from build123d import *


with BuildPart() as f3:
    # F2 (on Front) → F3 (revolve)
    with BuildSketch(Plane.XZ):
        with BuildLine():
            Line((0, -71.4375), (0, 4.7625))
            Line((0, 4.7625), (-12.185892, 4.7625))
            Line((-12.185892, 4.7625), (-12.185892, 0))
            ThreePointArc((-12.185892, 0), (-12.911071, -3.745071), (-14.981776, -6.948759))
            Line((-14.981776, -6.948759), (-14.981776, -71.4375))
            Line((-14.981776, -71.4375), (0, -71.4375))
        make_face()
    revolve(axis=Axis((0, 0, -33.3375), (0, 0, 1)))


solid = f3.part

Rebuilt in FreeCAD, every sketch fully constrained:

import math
import FreeCAD as App
import Part
import Sketcher
Q = App.Units.Quantity

doc = App.newDocument("Part")
body = doc.addObject("PartDesign::Body", "Body")

sketch1 = doc.addObject("Sketcher::SketchObject", "Sketch")
body.addObject(sketch1)
sketch1.AttachmentSupport = (doc.XZ_Plane, [""])
sketch1.MapMode = "FlatFace"
sketch1.addGeometry([
    Part.LineSegment(App.Vector(0, -71.4, 0), App.Vector(0, 4.8, 0)),
    Part.LineSegment(App.Vector(0, 4.8, 0), App.Vector(-12.2, 4.8, 0)),
    Part.LineSegment(App.Vector(-12.2, 4.8, 0), App.Vector(-12.2, 0, 0)),
    Part.ArcOfCircle(Part.Circle(App.Vector(-22.2, 0, 0), App.Vector(0, 0, 1), 10), math.radians(-44), math.radians(0)),
    Part.LineSegment(App.Vector(-15, -6.9, 0), App.Vector(-15, -71.4, 0)),
    Part.LineSegment(App.Vector(-15, -71.4, 0), App.Vector(0, -71.4, 0)),
], False)
sketch1.addConstraint([
    Sketcher.Constraint("Coincident", 0, 2, 1, 1),
    Sketcher.Constraint("Coincident", 1, 2, 2, 1),
    Sketcher.Constraint("Tangent", 2, 2, 3, 2),
    Sketcher.Constraint("Coincident", 3, 1, 4, 1),
    Sketcher.Constraint("Coincident", 4, 2, 5, 1),
    Sketcher.Constraint("Coincident", 5, 2, 0, 1),
    Sketcher.Constraint("Vertical", 0),
    Sketcher.Constraint("Horizontal", 1),
    Sketcher.Constraint("Vertical", 2),
    Sketcher.Constraint("Vertical", 4),
    Sketcher.Constraint("Horizontal", 5),
    Sketcher.Constraint("PointOnObject", 3, 3, -1),
    Sketcher.Constraint("PointOnObject", 0, 2, -2),
    Sketcher.Constraint("DistanceY", 0, 1, 0, 2, Q("3 in")),
    Sketcher.Constraint("Radius", 3, Q("0.3950002 in")),
    Sketcher.Constraint("DistanceY", 2, 2, 2, 1, Q("0.1875 in")),
    Sketcher.Constraint("DistanceY", 4, 2, 4, 1, Q("64.488741 mm")),
    Sketcher.Constraint("DistanceX", 1, 2, 1, 1, Q("12.185892 mm")),
])
revolution = doc.addObject("PartDesign::Revolution", "Revolution")
body.addObject(revolution)
revolution.Profile = sketch1
revolution.ReferenceAxis = (sketch1, ["V_Axis"])
revolution.Angle = 360

doc.recompute()
